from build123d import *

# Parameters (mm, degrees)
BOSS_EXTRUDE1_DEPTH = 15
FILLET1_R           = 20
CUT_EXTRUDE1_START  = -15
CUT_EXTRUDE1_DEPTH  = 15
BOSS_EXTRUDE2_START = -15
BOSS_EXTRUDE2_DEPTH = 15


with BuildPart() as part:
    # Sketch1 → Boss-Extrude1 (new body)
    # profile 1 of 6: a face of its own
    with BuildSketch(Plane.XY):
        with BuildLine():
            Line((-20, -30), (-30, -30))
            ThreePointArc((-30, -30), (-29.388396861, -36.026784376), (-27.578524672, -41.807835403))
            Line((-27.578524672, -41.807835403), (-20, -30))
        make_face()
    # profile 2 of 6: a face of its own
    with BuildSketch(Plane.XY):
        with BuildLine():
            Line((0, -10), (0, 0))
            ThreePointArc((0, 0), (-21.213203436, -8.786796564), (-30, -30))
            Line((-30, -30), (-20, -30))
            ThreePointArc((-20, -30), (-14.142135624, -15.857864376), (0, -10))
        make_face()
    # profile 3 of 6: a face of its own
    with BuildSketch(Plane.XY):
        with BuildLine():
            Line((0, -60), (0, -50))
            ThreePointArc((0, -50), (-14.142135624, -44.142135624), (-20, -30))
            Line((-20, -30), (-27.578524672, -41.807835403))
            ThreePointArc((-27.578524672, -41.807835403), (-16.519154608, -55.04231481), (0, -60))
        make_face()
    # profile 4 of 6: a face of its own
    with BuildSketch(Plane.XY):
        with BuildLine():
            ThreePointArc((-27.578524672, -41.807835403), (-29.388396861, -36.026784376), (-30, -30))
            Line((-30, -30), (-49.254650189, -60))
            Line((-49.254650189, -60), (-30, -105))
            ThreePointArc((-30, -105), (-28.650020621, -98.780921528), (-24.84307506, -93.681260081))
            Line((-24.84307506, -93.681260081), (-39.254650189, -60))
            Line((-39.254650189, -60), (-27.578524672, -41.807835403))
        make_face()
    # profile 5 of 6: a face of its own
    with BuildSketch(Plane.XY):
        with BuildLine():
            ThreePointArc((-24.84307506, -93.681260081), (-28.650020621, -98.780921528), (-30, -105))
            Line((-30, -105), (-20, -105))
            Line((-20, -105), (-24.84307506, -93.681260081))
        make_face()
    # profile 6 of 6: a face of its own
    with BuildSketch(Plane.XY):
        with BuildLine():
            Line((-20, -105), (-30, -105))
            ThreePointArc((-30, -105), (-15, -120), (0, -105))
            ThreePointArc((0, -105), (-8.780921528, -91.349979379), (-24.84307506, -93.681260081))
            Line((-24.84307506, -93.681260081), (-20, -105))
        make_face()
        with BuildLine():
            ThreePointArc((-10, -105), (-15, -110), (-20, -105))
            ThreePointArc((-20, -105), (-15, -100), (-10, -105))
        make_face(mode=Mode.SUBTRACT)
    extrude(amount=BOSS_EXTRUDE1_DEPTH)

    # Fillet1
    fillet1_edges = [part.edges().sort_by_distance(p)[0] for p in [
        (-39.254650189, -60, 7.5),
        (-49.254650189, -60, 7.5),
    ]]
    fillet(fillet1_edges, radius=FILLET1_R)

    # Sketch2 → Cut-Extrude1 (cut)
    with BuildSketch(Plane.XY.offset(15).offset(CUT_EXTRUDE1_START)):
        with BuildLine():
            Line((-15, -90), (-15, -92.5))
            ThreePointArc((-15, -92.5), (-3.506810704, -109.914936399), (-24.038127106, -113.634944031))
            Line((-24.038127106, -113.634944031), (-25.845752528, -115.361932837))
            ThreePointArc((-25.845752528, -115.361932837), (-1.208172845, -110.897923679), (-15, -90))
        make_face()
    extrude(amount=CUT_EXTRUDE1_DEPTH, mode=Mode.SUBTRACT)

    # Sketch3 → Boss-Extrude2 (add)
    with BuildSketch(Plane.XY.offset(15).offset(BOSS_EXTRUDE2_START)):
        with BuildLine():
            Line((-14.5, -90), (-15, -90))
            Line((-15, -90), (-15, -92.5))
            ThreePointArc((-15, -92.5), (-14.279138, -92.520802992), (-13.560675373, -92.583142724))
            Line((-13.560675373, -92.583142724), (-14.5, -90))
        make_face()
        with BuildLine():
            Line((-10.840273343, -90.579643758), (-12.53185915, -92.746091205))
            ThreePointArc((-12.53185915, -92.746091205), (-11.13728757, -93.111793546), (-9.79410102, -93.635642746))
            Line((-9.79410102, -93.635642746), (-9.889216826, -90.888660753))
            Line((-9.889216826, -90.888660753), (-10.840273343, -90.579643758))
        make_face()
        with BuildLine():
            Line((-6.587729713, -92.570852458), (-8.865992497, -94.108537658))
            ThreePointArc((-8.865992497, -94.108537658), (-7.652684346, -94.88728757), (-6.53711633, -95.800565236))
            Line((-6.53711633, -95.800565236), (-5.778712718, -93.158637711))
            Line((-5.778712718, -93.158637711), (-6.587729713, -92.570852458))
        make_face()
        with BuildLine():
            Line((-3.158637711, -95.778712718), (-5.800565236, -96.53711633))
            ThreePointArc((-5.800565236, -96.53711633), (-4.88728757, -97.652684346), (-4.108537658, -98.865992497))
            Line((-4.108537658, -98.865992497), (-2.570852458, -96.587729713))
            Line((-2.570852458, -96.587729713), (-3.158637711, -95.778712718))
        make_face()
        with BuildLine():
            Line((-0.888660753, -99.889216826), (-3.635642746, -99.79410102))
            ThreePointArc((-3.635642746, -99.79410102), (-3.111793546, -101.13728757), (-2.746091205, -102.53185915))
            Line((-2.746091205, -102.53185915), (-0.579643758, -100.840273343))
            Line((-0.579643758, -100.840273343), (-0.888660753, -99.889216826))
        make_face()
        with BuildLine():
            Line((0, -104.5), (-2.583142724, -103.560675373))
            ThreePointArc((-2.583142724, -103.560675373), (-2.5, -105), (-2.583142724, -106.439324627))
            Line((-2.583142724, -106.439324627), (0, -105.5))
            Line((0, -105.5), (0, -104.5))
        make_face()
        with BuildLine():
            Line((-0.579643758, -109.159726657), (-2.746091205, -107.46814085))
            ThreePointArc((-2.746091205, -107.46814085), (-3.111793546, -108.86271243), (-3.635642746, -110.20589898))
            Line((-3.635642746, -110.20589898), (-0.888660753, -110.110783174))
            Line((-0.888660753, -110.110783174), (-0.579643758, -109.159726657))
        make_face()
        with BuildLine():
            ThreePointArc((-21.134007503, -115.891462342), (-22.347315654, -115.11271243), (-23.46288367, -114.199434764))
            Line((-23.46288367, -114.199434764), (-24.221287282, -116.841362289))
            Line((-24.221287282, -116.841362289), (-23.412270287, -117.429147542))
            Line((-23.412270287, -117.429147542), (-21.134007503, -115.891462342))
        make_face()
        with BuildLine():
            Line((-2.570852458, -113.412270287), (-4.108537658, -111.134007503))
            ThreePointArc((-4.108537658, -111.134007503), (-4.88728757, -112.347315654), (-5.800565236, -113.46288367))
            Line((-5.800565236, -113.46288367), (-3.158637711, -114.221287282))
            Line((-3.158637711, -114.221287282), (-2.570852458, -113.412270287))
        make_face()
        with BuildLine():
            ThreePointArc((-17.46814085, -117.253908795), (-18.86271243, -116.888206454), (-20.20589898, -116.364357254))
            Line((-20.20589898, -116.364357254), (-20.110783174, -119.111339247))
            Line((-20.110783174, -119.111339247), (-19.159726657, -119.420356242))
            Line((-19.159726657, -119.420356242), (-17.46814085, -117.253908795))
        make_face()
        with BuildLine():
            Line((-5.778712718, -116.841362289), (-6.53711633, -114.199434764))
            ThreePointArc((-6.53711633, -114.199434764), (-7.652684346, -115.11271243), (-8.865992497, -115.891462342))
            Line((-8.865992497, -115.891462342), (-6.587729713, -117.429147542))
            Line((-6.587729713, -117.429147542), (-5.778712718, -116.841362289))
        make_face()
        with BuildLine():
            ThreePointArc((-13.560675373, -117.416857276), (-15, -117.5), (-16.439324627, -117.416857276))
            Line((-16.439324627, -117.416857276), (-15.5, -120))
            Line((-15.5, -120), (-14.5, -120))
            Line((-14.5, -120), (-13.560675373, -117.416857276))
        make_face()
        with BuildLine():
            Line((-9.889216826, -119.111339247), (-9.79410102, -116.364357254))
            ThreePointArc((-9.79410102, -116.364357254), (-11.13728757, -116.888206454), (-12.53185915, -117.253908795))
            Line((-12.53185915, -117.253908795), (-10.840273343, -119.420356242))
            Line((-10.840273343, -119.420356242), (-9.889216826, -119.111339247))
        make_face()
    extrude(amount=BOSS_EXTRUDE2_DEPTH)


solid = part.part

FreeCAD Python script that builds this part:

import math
import FreeCAD as App
import Part
import Sketcher
Q = App.Units.Quantity


def edges_at(feature, points):
    """Names of the edges that pass closest to the given points."""
    edges = feature.Shape.Edges
    near = lambda p: min(range(len(edges)), key=lambda i: edges[i].distToShape(Part.Vertex(*p))[0])
    return sorted({f"Edge{near(p) + 1}" for p in points})

doc = App.newDocument("Part")
body = doc.addObject("PartDesign::Body", "Body")

sketch1 = doc.addObject("Sketcher::SketchObject", "Sketch")
body.addObject(sketch1)
sketch1.AttachmentSupport = (doc.XY_Plane, [""])
sketch1.MapMode = "FlatFace"
sketch1.addGeometry([
    Part.LineSegment(App.Vector(0, -10, 0), App.Vector(0, 0, 0)),
    Part.ArcOfCircle(Part.Circle(App.Vector(0, -30, 0), App.Vector(0, 0, 1), 30), math.radians(90), math.radians(180)),
    Part.LineSegment(App.Vector(-30, -30, 0), App.Vector(-49.25465, -60, 0)),
    Part.LineSegment(App.Vector(-49.25465, -60, 0), App.Vector(-30, -105, 0)),
    Part.ArcOfCircle(Part.Circle(App.Vector(-15, -105, 0), App.Vector(0, 0, 1), 15), math.radians(180), math.radians(360)),
    Part.ArcOfCircle(Part.Circle(App.Vector(-15, -105, 0), App.Vector(0, 0, 1), 15), math.radians(0), math.radians(131.011083)),
    Part.LineSegment(App.Vector(-24.843075, -93.68126, 0), App.Vector(-39.25465, -60, 0)),
    Part.LineSegment(App.Vector(-39.25465, -60, 0), App.Vector(-27.578525, -41.807835, 0)),
    Part.ArcOfCircle(Part.Circle(App.Vector(0, -30, 0), App.Vector(0, 0, 1), 30), math.radians(-156.821654), math.radians(-90)),
    Part.LineSegment(App.Vector(0, -60, 0), App.Vector(0, -50, 0)),
    Part.ArcOfCircle(Part.Circle(App.Vector(0, -30, 0), App.Vector(0, 0, 1), 20), math.radians(180), math.radians(270)),
    Part.ArcOfCircle(Part.Circle(App.Vector(0, -30, 0), App.Vector(0, 0, 1), 20), math.radians(90), math.radians(180)),
    Part.Circle(App.Vector(-15, -105, 0), App.Vector(0, 0, 1), 5),
], False)
sketch1.addConstraint([
    Sketcher.Constraint("Coincident", 0, 2, 1, 1),
    Sketcher.Constraint("Coincident", 1, 2, 2, 1),
    Sketcher.Constraint("Coincident", 2, 2, 3, 1),
    Sketcher.Constraint("Coincident", 3, 2, 4, 1),
    Sketcher.Constraint("Tangent", 4, 2, 5, 1),
    Sketcher.Constraint("Coincident", 5, 2, 6, 1),
    Sketcher.Constraint("Coincident", 6, 2, 7, 1),
    Sketcher.Constraint("Coincident", 7, 2, 8, 1),
    Sketcher.Constraint("Coincident", 8, 2, 9, 1),
    Sketcher.Constraint("Coincident", 9, 2, 10, 2),
    Sketcher.Constraint("Tangent", 10, 1, 11, 2),
    Sketcher.Constraint("Coincident", 11, 1, 0, 1),
    Sketcher.Constraint("Vertical", 0),
    Sketcher.Constraint("Vertical", 9),
    Sketcher.Constraint("Coincident", 0, 2, -1, 1),
    Sketcher.Constraint("Coincident", 8, 3, 1, 3),
    Sketcher.Constraint("Coincident", 10, 3, 1, 3),
    Sketcher.Constraint("Coincident", 12, 3, 4, 3),
    Sketcher.Constraint("Equal", 4, 5),
    Sketcher.Constraint("Equal", 1, 8),
    Sketcher.Constraint("Equal", 10, 11),
    Sketcher.Constraint("PointOnObject", 1, 3, -2),
    Sketcher.Constraint("PointOnObject", 4, 2, -2),
    Sketcher.Constraint("PointOnObject", 8, 2, -2),
    Sketcher.Constraint("Parallel", 3, 6),
    Sketcher.Constraint("Parallel", 2, 7),
    Sketcher.Constraint("Horizontal", 11, 3, 1, 2),
    Sketcher.Constraint("Horizontal", 12, 3, 3, 2),
    Sketcher.Constraint("Horizontal", 3, 2, 4, 2),
    Sketcher.Constraint("Horizontal", 2, 2, 6, 2),
    Sketcher.Constraint("Horizontal", 6, 2, 8, 2),
    Sketcher.Constraint("Horizontal", 1, 2, 10, 1),
    Sketcher.Constraint("Vertical", 1, 2, 3, 2),
    Sketcher.Constraint("Diameter", 12, Q("10 mm")),
    Sketcher.Constraint("Radius", 1, Q("30 mm")),
    Sketcher.Constraint("Radius", 10, Q("20 mm")),
    Sketcher.Constraint("DistanceY", 4, 3, -1, 1, Q("105 mm")),
    Sketcher.Constraint("DistanceX", 2, 2, 6, 2, Q("10 mm")),
    Sketcher.Constraint("DistanceX", 2, 2, -1, 1, Q("49.25465 mm")),
])
pad1 = doc.addObject("PartDesign::Pad", "Pad")
body.addObject(pad1)
pad1.Profile = sketch1
pad1.Length = 15
doc.recompute()

fillet = doc.addObject("PartDesign::Fillet", "Fillet")
body.addObject(fillet)
fillet.Base = (pad1, edges_at(pad1, [(-39.255, -60, 7.5), (-49.255, -60, 7.5)]))
fillet.Radius = 20

sketch2 = doc.addObject("Sketcher::SketchObject", "Sketch001")
body.addObject(sketch2)
sketch2.AttachmentSupport = (doc.XY_Plane, [""])
sketch2.MapMode = "FlatFace"
sketch2.addGeometry([
    Part.LineSegment(App.Vector(-15, -90, 0), App.Vector(-15, -92.5, 0)),
    Part.ArcOfCircle(Part.Circle(App.Vector(-15, -105, 0), App.Vector(0, 0, 1), 12.5), math.radians(-136.306886), math.radians(90)),
    Part.LineSegment(App.Vector(-24.038127, -113.634944, 0), App.Vector(-25.845753, -115.361933, 0)),
    Part.ArcOfCircle(Part.Circle(App.Vector(-15, -105, 0), App.Vector(0, 0, 1), 15), math.radians(-136.306886), math.radians(90)),
], False)
sketch2.addConstraint([
    Sketcher.Constraint("Coincident", 0, 2, 1, 2),
    Sketcher.Constraint("Coincident", 1, 1, 2, 1),
    Sketcher.Constraint("Coincident", 2, 2, 3, 1),
    Sketcher.Constraint("Coincident", 3, 2, 0, 1),
    Sketcher.Constraint("Vertical", 0),
    Sketcher.Constraint("Coincident", 3, 3, 1, 3),
    Sketcher.Constraint("Vertical", 3, 3, 0, 2),
    Sketcher.Constraint("Radius", 3, Q("15 mm")),
    Sketcher.Constraint("Radius", 1, Q("12.5 mm")),
    Sketcher.Constraint("DistanceX", 1, 3, -1, 1, Q("15 mm")),
    Sketcher.Constraint("DistanceY", 1, 3, -1, 1, Q("105 mm")),
    Sketcher.Constraint("DistanceY", 2, 2, 1, 1, Q("1.726989 mm")),
    Sketcher.Constraint("DistanceX", 1, 1, -1, 1, Q("24.038127 mm")),
])
pocket1 = doc.addObject("PartDesign::Pocket", "Pocket")
body.addObject(pocket1)
pocket1.Profile = sketch2
pocket1.Length = 15
pocket1.Reversed = True

sketch3 = doc.addObject("Sketcher::SketchObject", "Sketch002")
body.addObject(sketch3)
sketch3.AttachmentSupport = (doc.XY_Plane, [""])
sketch3.MapMode = "FlatFace"
sketch3.addGeometry([
    Part.LineSegment(App.Vector(-14.5, -90, 0), App.Vector(-15, -90, 0)),
    Part.LineSegment(App.Vector(-15, -90, 0), App.Vector(-15, -92.5, 0)),
    Part.ArcOfCircle(Part.Circle(App.Vector(-15, -105, 0), App.Vector(0, 0, 1), 12.5), math.radians(83.387956), math.radians(90)),
    Part.LineSegment(App.Vector(-13.560675, -92.583143, 0), App.Vector(-14.5, -90, 0)),
    Part.LineSegment(App.Vector(-10.840273, -90.579644, 0), App.Vector(-12.531859, -92.746091, 0)),
    Part.ArcOfCircle(Part.Circle(App.Vector(-15, -105, 0), App.Vector(0, 0, 1), 12.5), math.radians(65.387955), math.radians(78.612044)),
    Part.LineSegment(App.Vector(-9.794101, -93.635643, 0), App.Vector(-9.889217, -90.888661, 0)),
    Part.LineSegment(App.Vector(-9.889217, -90.888661, 0), App.Vector(-10.840273, -90.579644, 0)),
    Part.LineSegment(App.Vector(-6.58773, -92.570852, 0), App.Vector(-8.865992, -94.108538, 0)),
    Part.ArcOfCircle(Part.Circle(App.Vector(-15, -105, 0), App.Vector(0, 0, 1), 12.5), math.radians(47.387955), math.radians(60.612045)),
    Part.LineSegment(App.Vector(-6.537116, -95.800565, 0), App.Vector(-5.778713, -93.158638, 0)),
    Part.LineSegment(App.Vector(-5.778713, -93.158638, 0), App.Vector(-6.58773, -92.570852, 0)),
    Part.LineSegment(App.Vector(-3.158638, -95.778713, 0), App.Vector(-5.800565, -96.537116, 0)),
    Part.ArcOfCircle(Part.Circle(App.Vector(-15, -105, 0), App.Vector(0, 0, 1), 12.5), math.radians(29.387955), math.radians(42.612045)),
    Part.LineSegment(App.Vector(-4.108538, -98.865992, 0), App.Vector(-2.570852, -96.58773, 0)),
    Part.LineSegment(App.Vector(-2.570852, -96.58773, 0), App.Vector(-3.158638, -95.778713, 0)),
    Part.LineSegment(App.Vector(-0.888661, -99.889217, 0), App.Vector(-3.635643, -99.794101, 0)),
    Part.ArcOfCircle(Part.Circle(App.Vector(-15, -105, 0), App.Vector(0, 0, 1), 12.5), math.radians(11.387956), math.radians(24.612045)),
    Part.LineSegment(App.Vector(-2.746091, -102.531859, 0), App.Vector(-0.579644, -100.840273, 0)),
    Part.LineSegment(App.Vector(-0.579644, -100.840273, 0), App.Vector(-0.888661, -99.889217, 0)),
    Part.LineSegment(App.Vector(0, -104.5, 0), App.Vector(-2.583143, -103.560675, 0)),
    Part.ArcOfCircle(Part.Circle(App.Vector(-15, -105, 0), App.Vector(0, 0, 1), 12.5), math.radians(-6.612044), math.radians(6.612044)),
    Part.LineSegment(App.Vector(-2.583143, -106.439325, 0), App.Vector(0, -105.5, 0)),
    Part.LineSegment(App.Vector(0, -105.5, 0), App.Vector(0, -104.5, 0)),
    Part.LineSegment(App.Vector(-0.579644, -109.159727, 0), App.Vector(-2.746091, -107.468141, 0)),
    Part.ArcOfCircle(Part.Circle(App.Vector(-15, -105, 0), App.Vector(0, 0, 1), 12.5), math.radians(-24.612045), math.radians(-11.387956)),
    Part.LineSegment(App.Vector(-3.635643, -110.205899, 0), App.Vector(-0.888661, -110.110783, 0)),
    Part.LineSegment(App.Vector(-0.888661, -110.110783, 0), App.Vector(-0.579644, -109.159727, 0)),
    Part.ArcOfCircle(Part.Circle(App.Vector(-15, -105, 0), App.Vector(0, 0, 1), 12.5), math.radians(-132.612045), math.radians(-119.387955)),
    Part.LineSegment(App.Vector(-23.462884, -114.199435, 0), App.Vector(-24.221287, -116.841362, 0)),
    Part.LineSegment(App.Vector(-24.221287, -116.841362, 0), App.Vector(-23.41227, -117.429148, 0)),
    Part.LineSegment(App.Vector(-23.41227, -117.429148, 0), App.Vector(-21.134008, -115.891462, 0)),
    Part.LineSegment(App.Vector(-2.570852, -113.41227, 0), App.Vector(-4.108538, -111.134008, 0)),
    Part.ArcOfCircle(Part.Circle(App.Vector(-15, -105, 0), App.Vector(0, 0, 1), 12.5), math.radians(-42.612045), math.radians(-29.387955)),
    Part.LineSegment(App.Vector(-5.800565, -113.462884, 0), App.Vector(-3.158638, -114.221287, 0)),
    Part.LineSegment(App.Vector(-3.158638, -114.221287, 0), App.Vector(-2.570852, -113.41227, 0)),
    Part.ArcOfCircle(Part.Circle(App.Vector(-15, -105, 0), App.Vector(0, 0, 1), 12.5), math.radians(-114.612045), math.radians(-101.387956)),
    Part.LineSegment(App.Vector(-20.205899, -116.364357, 0), App.Vector(-20.110783, -119.111339, 0)),
    Part.LineSegment(App.Vector(-20.110783, -119.111339, 0), App.Vector(-19.159727, -119.420356, 0)),
    Part.LineSegment(App.Vector(-19.159727, -119.420356, 0), App.Vector(-17.468141, -117.253909, 0)),
    Part.LineSegment(App.Vector(-5.778713, -116.841362, 0), App.Vector(-6.537116, -114.199435, 0)),
    Part.ArcOfCircle(Part.Circle(App.Vector(-15, -105, 0), App.Vector(0, 0, 1), 12.5), math.radians(-60.612045), math.radians(-47.387955)),
    Part.LineSegment(App.Vector(-8.865992, -115.891462, 0), App.Vector(-6.58773, -117.429148, 0)),
    Part.LineSegment(App.Vector(-6.58773, -117.429148, 0), App.Vector(-5.778713, -116.841362, 0)),
    Part.ArcOfCircle(Part.Circle(App.Vector(-15, -105, 0), App.Vector(0, 0, 1), 12.5), math.radians(-96.612044), math.radians(-83.387956)),
    Part.LineSegment(App.Vector(-16.439325, -117.416857, 0), App.Vector(-15.5, -120, 0)),
    Part.LineSegment(App.Vector(-15.5, -120, 0), App.Vector(-14.5, -120, 0)),
    Part.LineSegment(App.Vector(-14.5, -120, 0), App.Vector(-13.560675, -117.416857, 0)),
    Part.LineSegment(App.Vector(-9.889217, -119.111339, 0), App.Vector(-9.794101, -116.364357, 0)),
    Part.ArcOfCircle(Part.Circle(App.Vector(-15, -105, 0), App.Vector(0, 0, 1), 12.5), math.radians(-78.612044), math.radians(-65.387955)),
    Part.LineSegment(App.Vector(-12.531859, -117.253909, 0), App.Vector(-10.840273, -119.420356, 0)),
    Part.LineSegment(App.Vector(-10.840273, -119.420356, 0), App.Vector(-9.889217, -119.111339, 0)),
], False)
sketch3.addConstraint([
    Sketcher.Constraint("Coincident", 0, 2, 1, 1),
    Sketcher.Constraint("Coincident", 1, 2, 2, 2),
    Sketcher.Constraint("Coincident", 2, 1, 3, 1),
    Sketcher.Constraint("Coincident", 3, 2, 0, 1),
    Sketcher.Constraint("Coincident", 4, 2, 5, 2),
    Sketcher.Constraint("Coincident", 5, 1, 6, 1),
    Sketcher.Constraint("Coincident", 6, 2, 7, 1),
    Sketcher.Constraint("Coincident", 7, 2, 4, 1),
    Sketcher.Constraint("Coincident", 8, 2, 9, 2),
    Sketcher.Constraint("Coincident", 9, 1, 10, 1),
    Sketcher.Constraint("Coincident", 10, 2, 11, 1),
    Sketcher.Constraint("Coincident", 11, 2, 8, 1),
    Sketcher.Constraint("Coincident", 12, 2, 13, 2),
    Sketcher.Constraint("Coincident", 13, 1, 14, 1),
    Sketcher.Constraint("Coincident", 14, 2, 15, 1),
    Sketcher.Constraint("Coincident", 15, 2, 12, 1),
    Sketcher.Constraint("Coincident", 16, 2, 17, 2),
    Sketcher.Constraint("Coincident", 17, 1, 18, 1),
    Sketcher.Constraint("Coincident", 18, 2, 19, 1),
    Sketcher.Constraint("Coincident", 19, 2, 16, 1),
    Sketcher.Constraint("Coincident", 20, 2, 21, 2),
    Sketcher.Constraint("Coincident", 21, 1, 22, 1),
    Sketcher.Constraint("Coincident", 22, 2, 23, 1),
    Sketcher.Constraint("Coincident", 23, 2, 20, 1),
    Sketcher.Constraint("Coincident", 24, 2, 25, 2),
    Sketcher.Constraint("Coincident", 25, 1, 26, 1),
    Sketcher.Constraint("Coincident", 26, 2, 27, 1),
    Sketcher.Constraint("Coincident", 27, 2, 24, 1),
    Sketcher.Constraint("Coincident", 28, 1, 29, 1),
    Sketcher.Constraint("Coincident", 29, 2, 30, 1),
    Sketcher.Constraint("Coincident", 30, 2, 31, 1),
    Sketcher.Constraint("Coincident", 31, 2, 28, 2),
    Sketcher.Constraint("Coincident", 32, 2, 33, 2),
    Sketcher.Constraint("Coincident", 33, 1, 34, 1),
    Sketcher.Constraint("Coincident", 34, 2, 35, 1),
    Sketcher.Constraint("Coincident", 35, 2, 32, 1),
    Sketcher.Constraint("Coincident", 36, 1, 37, 1),
    Sketcher.Constraint("Coincident", 37, 2, 38, 1),
    Sketcher.Constraint("Coincident", 38, 2, 39, 1),
    Sketcher.Constraint("Coincident", 39, 2, 36, 2),
    Sketcher.Constraint("Coincident", 40, 2, 41, 2),
    Sketcher.Constraint("Coincident", 41, 1, 42, 1),
    Sketcher.Constraint("Coincident", 42, 2, 43, 1),
    Sketcher.Constraint("Coincident", 43, 2, 40, 1),
    Sketcher.Constraint("Coincident", 44, 1, 45, 1),
    Sketcher.Constraint("Coincident", 45, 2, 46, 1),
    Sketcher.Constraint("Coincident", 46, 2, 47, 1),
    Sketcher.Constraint("Coincident", 47, 2, 44, 2),
    Sketcher.Constraint("Coincident", 48, 2, 49, 2),
    Sketcher.Constraint("Coincident", 49, 1, 50, 1),
    Sketcher.Constraint("Coincident", 50, 2, 51, 1),
    Sketcher.Constraint("Coincident", 51, 2, 48, 1),
    Sketcher.Constraint("Horizontal", 0),
    Sketcher.Constraint("Vertical", 1),
    Sketcher.Constraint("Vertical", 23),
    Sketcher.Constraint("Horizontal", 46),
    Sketcher.Constraint("Coincident", 5, 3, 2, 3),
    Sketcher.Constraint("Coincident", 9, 3, 2, 3),
    Sketcher.Constraint("Coincident", 13, 3, 2, 3),
    Sketcher.Constraint("Coincident", 17, 3, 2, 3),
    Sketcher.Constraint("Coincident", 21, 3, 2, 3),
    Sketcher.Constraint("Coincident", 25, 3, 2, 3),
    Sketcher.Constraint("Coincident", 28, 3, 2, 3),
    Sketcher.Constraint("Coincident", 33, 3, 2, 3),
    Sketcher.Constraint("Coincident", 36, 3, 2, 3),
    Sketcher.Constraint("Coincident", 41, 3, 2, 3),
    Sketcher.Constraint("Coincident", 44, 3, 2, 3),
    Sketcher.Constraint("Coincident", 49, 3, 2, 3),
    Sketcher.Constraint("Equal", 2, 5),
    Sketcher.Constraint("Equal", 5, 9),
    Sketcher.Constraint("Equal", 9, 13),
    Sketcher.Constraint("Equal", 13, 17),
    Sketcher.Constraint("Equal", 17, 21),
    Sketcher.Constraint("Equal", 21, 25),
    Sketcher.Constraint("Equal", 25, 28),
    Sketcher.Constraint("Equal", 28, 33),
    Sketcher.Constraint("Equal", 33, 36),
    Sketcher.Constraint("Equal", 36, 41),
    Sketcher.Constraint("Equal", 41, 44),
    Sketcher.Constraint("Equal", 44, 49),
    Sketcher.Constraint("PointOnObject", 22, 2, -2),
    Sketcher.Constraint("Perpendicular", 3, 22),
    Sketcher.Constraint("Perpendicular", 4, 24),
    Sketcher.Constraint("Perpendicular", 6, 26),
    Sketcher.Constraint("Perpendicular", 7, 27),
    Sketcher.Constraint("Parallel", 10, 29),
    Sketcher.Constraint("Parallel", 11, 30),
    Sketcher.Constraint("Parallel", 8, 31),
    Sketcher.Constraint("Perpendicular", 31, 32),
    Sketcher.Constraint("Perpendicular", 29, 34),
    Sketcher.Constraint("Perpendicular", 30, 35),
    Sketcher.Constraint("Perpendicular", 26, 37),
    Sketcher.Constraint("Perpendicular", 27, 38),
    Sketcher.Constraint("Perpendicular", 24, 39),
    Sketcher.Constraint("Perpendicular", 12, 40),
    Sketcher.Constraint("Perpendicular", 14, 42),
    Sketcher.Constraint("Perpendicular", 15, 43),
    Sketcher.Constraint("Perpendicular", 22, 45),
    Sketcher.Constraint("Perpendicular", 20, 47),
    Sketcher.Constraint("Perpendicular", 16, 48),
    Sketcher.Constraint("Perpendicular", 18, 50),
    Sketcher.Constraint("Perpendicular", 19, 51),
    Sketcher.Constraint("Horizontal", 28, 1, 40, 2),
    Sketcher.Constraint("Horizontal", 31, 2, 41, 1),
    Sketcher.Constraint("Horizontal", 30, 2, 42, 2),
    Sketcher.Constraint("Horizontal", 29, 2, 43, 2),
    Sketcher.Constraint("Horizontal", 44, 1, 47, 2),
    Sketcher.Constraint("Horizontal", 36, 1, 48, 2),
    Sketcher.Constraint("Horizontal", 39, 2, 49, 1),
    Sketcher.Constraint("Horizontal", 38, 2, 50, 2),
    Sketcher.Constraint("Horizontal", 37, 2, 51, 2),
    Sketcher.Constraint("Vertical", 49, 3, 0, 2),
    Sketcher.Constraint("Vertical", 20, 2, 21, 1),
    Sketcher.Constraint("Vertical", 17, 1, 24, 2),
    Sketcher.Constraint("Vertical", 16, 2, 25, 1),
    Sketcher.Constraint("Vertical", 19, 2, 26, 2),
    Sketcher.Constraint("Vertical", 13, 1, 32, 2),
    Sketcher.Constraint("Vertical", 12, 2, 33, 1),
    Sketcher.Constraint("Vertical", 15, 2, 34, 2),
    Sketcher.Constraint("Vertical", 9, 1, 40, 2),
    Sketcher.Constraint("Vertical", 8, 2, 41, 1),
    Sketcher.Constraint("Vertical", 11, 2, 42, 2),
    Sketcher.Constraint("Vertical", 10, 2, 43, 2),
    Sketcher.Constraint("Vertical", 3, 2, 46, 2),
    Sketcher.Constraint("Vertical", 2, 1, 47, 2),
    Sketcher.Constraint("Vertical", 5, 1, 48, 2),
    Sketcher.Constraint("Vertical", 4, 2, 49, 1),
    Sketcher.Constraint("Vertical", 7, 2, 50, 2),
    Sketcher.Constraint("Vertical", 6, 2, 51, 2),
    Sketcher.Constraint("Equal", 46, 23),
    Sketcher.Constraint("Equal", 3, 4),
    Sketcher.Constraint("Equal", 4, 6),
    Sketcher.Constraint("Equal", 6, 8),
    Sketcher.Constraint("Equal", 8, 10),
    Sketcher.Constraint("Equal", 7, 11),
    Sketcher.Constraint("Equal", 10, 12),
    Sketcher.Constraint("Equal", 12, 14),
    Sketcher.Constraint("Equal", 11, 15),
    Sketcher.Constraint("Equal", 14, 16),
    Sketcher.Constraint("Equal", 16, 18),
    Sketcher.Constraint("Equal", 15, 19),
    Sketcher.Constraint("Equal", 18, 20),
    Sketcher.Constraint("Equal", 20, 22),
    Sketcher.Constraint("Equal", 22, 24),
    Sketcher.Constraint("Equal", 26, 29),
    Sketcher.Constraint("Radius", 2, Q("12.5 mm")),
    Sketcher.Constraint("DistanceX", 46, 1, 46, 2, Q("1 mm")),
    Sketcher.Constraint("Angle", 7, Q("162 deg")),
    Sketcher.Constraint("Angle", 11, Q("144 deg")),
    Sketcher.Constraint("Distance", 7, Q("1 mm")),
    Sketcher.Constraint("DistanceY", 1, 2, 1, 1, Q("2.5 mm")),
    Sketcher.Constraint("DistanceY", 2, 3, -1, 1, Q("105 mm")),
    Sketcher.Constraint("DistanceX", 5, 1, -1, 1, Q("9.794101 mm")),
    Sketcher.Constraint("Distance", 3, Q("2.748628 mm")),
    Sketcher.Constraint("DistanceX", 4, 2, -1, 1, Q("12.531859 mm")),
    Sketcher.Constraint("DistanceX", 11, 2, -1, 1, Q("6.58773 mm")),
    Sketcher.Constraint("DistanceX", 8, 2, -1, 1, Q("8.865992 mm")),
])
pad2 = doc.addObject("PartDesign::Pad", "Pad001")
body.addObject(pad2)
pad2.Profile = sketch3
pad2.Length = 15

doc.recompute()
